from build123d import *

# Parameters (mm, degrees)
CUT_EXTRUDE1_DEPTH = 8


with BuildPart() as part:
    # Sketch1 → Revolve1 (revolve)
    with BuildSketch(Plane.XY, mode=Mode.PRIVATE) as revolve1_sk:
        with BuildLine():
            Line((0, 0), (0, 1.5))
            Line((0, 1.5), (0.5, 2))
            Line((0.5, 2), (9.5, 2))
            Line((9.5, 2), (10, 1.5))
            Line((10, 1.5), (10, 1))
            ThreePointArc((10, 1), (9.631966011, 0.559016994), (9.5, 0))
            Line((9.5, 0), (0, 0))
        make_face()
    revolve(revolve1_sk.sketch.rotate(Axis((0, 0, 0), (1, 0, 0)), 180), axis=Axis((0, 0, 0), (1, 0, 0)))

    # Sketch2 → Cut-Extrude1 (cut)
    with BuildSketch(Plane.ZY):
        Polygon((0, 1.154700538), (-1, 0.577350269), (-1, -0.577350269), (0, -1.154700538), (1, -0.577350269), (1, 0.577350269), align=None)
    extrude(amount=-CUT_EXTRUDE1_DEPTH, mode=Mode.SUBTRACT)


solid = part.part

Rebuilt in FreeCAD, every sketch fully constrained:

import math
import FreeCAD as App
import Part
import Sketcher

V = App.Vector
Q = App.Units.Quantity


def add_polygon(sketch, points):
    """Adds a closed chain of lines whose ends are joined by coincident constraints."""
    first, n = sketch.GeometryCount, len(points)
    for a, b in zip(points, points[1:] + points[:1]):
        sketch.addGeometry(Part.LineSegment(App.Vector(*a, 0), App.Vector(*b, 0)), False)
    for i in range(n):
        sketch.addConstraint(Sketcher.Constraint("Coincident", first + i, 2, first + (i + 1) % n, 1))

doc = App.newDocument("Part")
body = doc.addObject("PartDesign::Body", "Body")

sketch1 = doc.addObject("Sketcher::SketchObject", "Sketch")
body.addObject(sketch1)
sketch1.AttachmentSupport = (doc.XY_Plane, [""])
sketch1.MapMode = "FlatFace"
sketch1.addGeometry(Part.LineSegment(V(0, 1.5, 0), V(0, 0, 0)), False)
sketch1.addGeometry(Part.LineSegment(V(0, 0, 0), V(9.5, 0, 0)), False)
sketch1.addGeometry(Part.ArcOfCircle(Part.Circle(V(10.75, 0, 0), V(0, 0, 1), 1.25), math.radians(126.869898), math.radians(180)), False)
sketch1.addGeometry(Part.LineSegment(V(10, 1, 0), V(10, 1.5, 0)), False)
sketch1.addGeometry(Part.LineSegment(V(10, 1.5, 0), V(9.5, 2, 0)), False)
sketch1.addGeometry(Part.LineSegment(V(9.5, 2, 0), V(0.5, 2, 0)), False)
sketch1.addGeometry(Part.LineSegment(V(0.5, 2, 0), V(0, 1.5, 0)), False)
sketch1.addConstraint(Sketcher.Constraint("Coincident", 0, 2, 1, 1))
sketch1.addConstraint(Sketcher.Constraint("Coincident", 1, 2, 2, 2))
sketch1.addConstraint(Sketcher.Constraint("Coincident", 2, 1, 3, 1))
sketch1.addConstraint(Sketcher.Constraint("Coincident", 3, 2, 4, 1))
sketch1.addConstraint(Sketcher.Constraint("Coincident", 4, 2, 5, 1))
sketch1.addConstraint(Sketcher.Constraint("Coincident", 5, 2, 6, 1))
sketch1.addConstraint(Sketcher.Constraint("Coincident", 6, 2, 0, 1))
sketch1.addConstraint(Sketcher.Constraint("Vertical", 0))
sketch1.addConstraint(Sketcher.Constraint("Horizontal", 1))
sketch1.addConstraint(Sketcher.Constraint("Vertical", 3))
sketch1.addConstraint(Sketcher.Constraint("Horizontal", 5))
sketch1.addConstraint(Sketcher.Constraint("Coincident", 0, 2, -1, 1))
sketch1.addConstraint(Sketcher.Constraint("PointOnObject", 2, 3, -1))
sketch1.addConstraint(Sketcher.Constraint("Perpendicular", 4, 6))
sketch1.addConstraint(Sketcher.Constraint("Horizontal", 3, 2, 6, 2))
sketch1.addConstraint(Sketcher.Constraint("Vertical", 1, 2, 4, 2))
sketch1.addConstraint(Sketcher.Constraint("Equal", 4, 6))
sketch1.addConstraint(Sketcher.Constraint("DistanceX", 5, 2, 5, 1, 9.0))
sketch1.addConstraint(Sketcher.Constraint("Radius", 2, 1.25))
sketch1.addConstraint(Sketcher.Constraint("DistanceX", 1, 1, 1, 2, 9.5))
sketch1.addConstraint(Sketcher.Constraint("DistanceY", 0, 2, 0, 1, 1.5))
revolution = doc.addObject("PartDesign::Revolution", "Revolution")
body.addObject(revolution)
revolution.Profile = sketch1
revolution.ReferenceAxis = (sketch1, ["H_Axis"])
revolution.Angle = 360

sketch2 = doc.addObject("Sketcher::SketchObject", "Sketch001")
body.addObject(sketch2)
sketch2.AttachmentSupport = (doc.YZ_Plane, [""])
sketch2.MapMode = "FlatFace"
add_polygon(sketch2, [(1.154701, 0), (0.57735, -1), (-0.57735, -1), (-1.154701, 0), (-0.57735, 1), (0.57735, 1)])
sketch2.addConstraint(Sketcher.Constraint("Horizontal", 1))
sketch2.addConstraint(Sketcher.Constraint("Horizontal", 4))
sketch2.addConstraint(Sketcher.Constraint("Symmetric", 0, 2, 3, 2, -1, 1))
sketch2.addConstraint(Sketcher.Constraint("Symmetric", 2, 2, 5, 2, -1, 1))
sketch2.addConstraint(Sketcher.Constraint("PointOnObject", 2, 2, -1))
sketch2.addConstraint(Sketcher.Constraint("Parallel", 2, 5))
sketch2.addConstraint(Sketcher.Constraint("Vertical", 1, 2, 3, 2))
sketch2.addConstraint(Sketcher.Constraint("Angle", 0, Q("-120 deg")))
sketch2.addConstraint(Sketcher.Constraint("DistanceY", 0, 2, -1, 1, 1.0))
sketch2.addConstraint(Sketcher.Constraint("DistanceX", 1, 2, 1, 1, 1.154701))
pocket1 = doc.addObject("PartDesign::Pocket", "Pocket")
body.addObject(pocket1)
pocket1.Profile = sketch2
pocket1.Length = 8
pocket1.Reversed = True

doc.recompute()
